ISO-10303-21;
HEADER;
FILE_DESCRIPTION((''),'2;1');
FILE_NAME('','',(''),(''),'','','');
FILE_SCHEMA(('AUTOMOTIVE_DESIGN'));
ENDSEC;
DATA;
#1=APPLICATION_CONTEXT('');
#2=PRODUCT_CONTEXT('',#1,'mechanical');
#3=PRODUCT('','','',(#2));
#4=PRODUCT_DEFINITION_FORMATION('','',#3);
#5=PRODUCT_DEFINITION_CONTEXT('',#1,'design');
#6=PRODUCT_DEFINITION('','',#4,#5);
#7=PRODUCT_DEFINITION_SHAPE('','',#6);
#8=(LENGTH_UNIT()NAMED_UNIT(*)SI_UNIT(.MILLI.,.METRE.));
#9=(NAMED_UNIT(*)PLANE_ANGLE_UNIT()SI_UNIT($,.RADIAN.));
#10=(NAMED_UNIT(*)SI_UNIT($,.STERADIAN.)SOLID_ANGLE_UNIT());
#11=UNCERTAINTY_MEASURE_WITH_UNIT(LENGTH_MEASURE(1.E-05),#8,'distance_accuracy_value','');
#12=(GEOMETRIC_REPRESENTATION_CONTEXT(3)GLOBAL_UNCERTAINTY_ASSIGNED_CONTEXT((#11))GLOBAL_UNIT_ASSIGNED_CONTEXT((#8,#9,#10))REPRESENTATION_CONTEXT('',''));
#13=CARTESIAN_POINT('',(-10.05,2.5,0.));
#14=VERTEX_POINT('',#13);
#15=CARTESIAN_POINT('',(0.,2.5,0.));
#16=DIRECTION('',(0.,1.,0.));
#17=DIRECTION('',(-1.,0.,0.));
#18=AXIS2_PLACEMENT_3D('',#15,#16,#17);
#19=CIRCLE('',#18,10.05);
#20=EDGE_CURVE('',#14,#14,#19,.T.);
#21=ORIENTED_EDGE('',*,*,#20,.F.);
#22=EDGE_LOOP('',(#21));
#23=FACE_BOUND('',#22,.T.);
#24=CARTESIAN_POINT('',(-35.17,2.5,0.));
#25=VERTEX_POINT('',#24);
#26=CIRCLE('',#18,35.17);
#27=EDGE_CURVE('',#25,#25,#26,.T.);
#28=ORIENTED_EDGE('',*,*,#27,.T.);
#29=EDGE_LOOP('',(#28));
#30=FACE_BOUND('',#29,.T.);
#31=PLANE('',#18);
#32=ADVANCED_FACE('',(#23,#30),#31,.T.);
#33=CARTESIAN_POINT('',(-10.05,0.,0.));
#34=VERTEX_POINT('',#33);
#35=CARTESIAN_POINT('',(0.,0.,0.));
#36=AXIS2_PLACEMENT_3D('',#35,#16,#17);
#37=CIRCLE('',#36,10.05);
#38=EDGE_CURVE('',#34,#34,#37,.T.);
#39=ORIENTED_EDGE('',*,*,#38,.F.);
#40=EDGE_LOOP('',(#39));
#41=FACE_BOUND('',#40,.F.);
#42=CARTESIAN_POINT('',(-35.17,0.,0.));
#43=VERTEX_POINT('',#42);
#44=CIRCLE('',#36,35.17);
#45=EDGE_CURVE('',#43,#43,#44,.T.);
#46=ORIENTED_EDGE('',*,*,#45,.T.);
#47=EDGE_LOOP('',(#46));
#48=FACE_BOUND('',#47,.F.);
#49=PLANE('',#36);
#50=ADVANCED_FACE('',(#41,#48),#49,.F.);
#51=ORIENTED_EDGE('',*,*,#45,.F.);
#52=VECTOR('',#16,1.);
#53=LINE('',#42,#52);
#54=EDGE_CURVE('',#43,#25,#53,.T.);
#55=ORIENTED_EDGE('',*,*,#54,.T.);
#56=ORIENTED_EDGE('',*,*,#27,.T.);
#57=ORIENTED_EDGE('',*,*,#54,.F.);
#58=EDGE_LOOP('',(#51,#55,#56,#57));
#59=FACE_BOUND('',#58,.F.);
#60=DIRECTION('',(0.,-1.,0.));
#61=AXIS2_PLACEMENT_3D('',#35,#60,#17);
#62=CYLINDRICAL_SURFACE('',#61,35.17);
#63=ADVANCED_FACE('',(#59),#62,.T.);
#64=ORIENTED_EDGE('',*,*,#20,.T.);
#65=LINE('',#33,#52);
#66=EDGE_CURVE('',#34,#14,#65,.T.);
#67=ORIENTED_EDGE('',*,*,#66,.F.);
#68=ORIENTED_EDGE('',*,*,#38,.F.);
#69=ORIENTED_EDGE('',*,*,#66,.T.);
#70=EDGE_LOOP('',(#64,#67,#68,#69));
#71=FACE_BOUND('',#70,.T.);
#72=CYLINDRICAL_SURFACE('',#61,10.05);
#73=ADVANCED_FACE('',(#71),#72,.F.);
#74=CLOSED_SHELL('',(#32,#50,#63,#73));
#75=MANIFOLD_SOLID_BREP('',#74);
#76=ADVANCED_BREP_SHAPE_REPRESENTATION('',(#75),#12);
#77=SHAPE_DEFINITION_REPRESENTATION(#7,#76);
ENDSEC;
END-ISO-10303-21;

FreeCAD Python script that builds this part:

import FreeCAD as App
import Part
import Sketcher
from FreeCAD import Vector
Q = App.Units.Quantity

doc = App.newDocument("Part")
params = doc.addObject("Spreadsheet::Sheet", "Params")
for row, (alias, value) in enumerate([
    ("sketch1_diameter", "20.1 mm"),
    ("sketch1_diameter2", "70.34 mm"),
    ("pad1_length", "2.5 mm"),
], start=1):
    params.set(f"A{row}", alias)
    params.set(f"B{row}", "=" + value)
    params.setAlias(f"B{row}", alias)

body = doc.addObject("PartDesign::Body", "Body")

# Sketch on XZ plane
sketch1 = body.newObject("Sketcher::SketchObject", "Sketch")
sketch1.AttachmentSupport = (doc.getObject("XZ_Plane"), [""])
sketch1.MapMode = "FlatFace"
sketch1.addGeometry([
    Part.Circle(Vector(0, 0, 0), Vector(0, 0, 1), 35),
    Part.Circle(Vector(0, 0, 0), Vector(0, 0, 1), 10),
], False)
sketch1.addConstraint([
    Sketcher.Constraint("Coincident", 0, 3, -1, 1),
    Sketcher.Constraint("Coincident", 1, 3, -1, 1),
    Sketcher.Constraint("Diameter", 1, Q("20.1 mm")),
    Sketcher.Constraint("Diameter", 0, Q("70.34 mm")),
])
sketch1.setExpression("Constraints[2]", "Params.sketch1_diameter")
sketch1.setExpression("Constraints[3]", "Params.sketch1_diameter2")
pad1 = body.newObject("PartDesign::Pad", "Pad")
pad1.Profile = sketch1
pad1.setExpression("Length", "Params.pad1_length")
pad1.Reversed = True

doc.recompute()
